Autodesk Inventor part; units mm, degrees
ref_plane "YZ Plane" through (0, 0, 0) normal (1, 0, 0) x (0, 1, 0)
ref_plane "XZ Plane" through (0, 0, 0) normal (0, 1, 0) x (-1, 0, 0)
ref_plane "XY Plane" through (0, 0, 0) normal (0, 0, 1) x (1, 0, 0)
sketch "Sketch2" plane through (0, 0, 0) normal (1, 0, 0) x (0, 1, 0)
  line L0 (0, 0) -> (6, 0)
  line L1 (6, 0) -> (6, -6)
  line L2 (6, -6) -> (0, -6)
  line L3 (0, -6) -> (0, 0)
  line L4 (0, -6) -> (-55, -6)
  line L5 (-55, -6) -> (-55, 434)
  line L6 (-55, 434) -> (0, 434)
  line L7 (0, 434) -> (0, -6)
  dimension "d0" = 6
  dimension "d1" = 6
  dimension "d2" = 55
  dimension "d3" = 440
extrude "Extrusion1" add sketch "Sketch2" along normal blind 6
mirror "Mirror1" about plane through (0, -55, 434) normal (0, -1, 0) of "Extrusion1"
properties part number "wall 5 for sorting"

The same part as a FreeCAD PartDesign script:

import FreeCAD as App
import Part
import Sketcher

doc = App.newDocument("Part")
params = doc.addObject("Spreadsheet::Sheet", "Params")
for row, (alias, value) in enumerate([
    ("sketch1_width", "6 mm"),
    ("sketch1_width2", "55 mm"),
    ("sketch1_height", "440 mm"),
    ("pad1_length", "6 mm"),
], start=1):
    params.set(f"A{row}", alias)
    params.set(f"B{row}", "=" + value)
    params.setAlias(f"B{row}", alias)

body = doc.addObject("PartDesign::Body", "Body")

# Sketch on YZ plane
sketch1 = doc.addObject("Sketcher::SketchObject", "Sketch")
body.addObject(sketch1)
sketch1.AttachmentSupport = (doc.YZ_Plane, [""])
sketch1.MapMode = "FlatFace"
sketch1.addGeometry(Part.LineSegment(App.Vector(6, 0, 0), App.Vector(0, 0, 0)), False)
sketch1.addGeometry(Part.LineSegment(App.Vector(0, 0, 0), App.Vector(0, 434, 0)), False)
sketch1.addGeometry(Part.LineSegment(App.Vector(0, 434, 0), App.Vector(-55, 434, 0)), False)
sketch1.addGeometry(Part.LineSegment(App.Vector(-55, 434, 0), App.Vector(-55, -6, 0)), False)
sketch1.addGeometry(Part.LineSegment(App.Vector(-55, -6, 0), App.Vector(6, -6, 0)), False)
sketch1.addGeometry(Part.LineSegment(App.Vector(6, -6, 0), App.Vector(6, 0, 0)), False)
sketch1.addConstraint(Sketcher.Constraint("Coincident", 0, 2, 1, 1))
sketch1.addConstraint(Sketcher.Constraint("Coincident", 1, 2, 2, 1))
sketch1.addConstraint(Sketcher.Constraint("Coincident", 2, 2, 3, 1))
sketch1.addConstraint(Sketcher.Constraint("Coincident", 3, 2, 4, 1))
sketch1.addConstraint(Sketcher.Constraint("Coincident", 4, 2, 5, 1))
sketch1.addConstraint(Sketcher.Constraint("Coincident", 5, 2, 0, 1))
sketch1.addConstraint(Sketcher.Constraint("Horizontal", 0))
sketch1.addConstraint(Sketcher.Constraint("Vertical", 1))
sketch1.addConstraint(Sketcher.Constraint("Horizontal", 2))
sketch1.addConstraint(Sketcher.Constraint("Vertical", 3))
sketch1.addConstraint(Sketcher.Constraint("Horizontal", 4))
sketch1.addConstraint(Sketcher.Constraint("Vertical", 5))
sketch1.addConstraint(Sketcher.Constraint("Coincident", 0, 2, -1, 1))
sketch1.addConstraint(Sketcher.Constraint("Equal", 0, 5))
sketch1.addConstraint(Sketcher.Constraint("DistanceX", 0, 2, 0, 1, 6.0))
sketch1.addConstraint(Sketcher.Constraint("DistanceX", 2, 2, 2, 1, 55.0))
sketch1.addConstraint(Sketcher.Constraint("DistanceY", 3, 2, 3, 1, 440.0))
sketch1.setExpression("Constraints[14]", "Params.sketch1_width")
sketch1.setExpression("Constraints[15]", "Params.sketch1_width2")
sketch1.setExpression("Constraints[16]", "Params.sketch1_height")
pad1 = doc.addObject("PartDesign::Pad", "Pad")
body.addObject(pad1)
pad1.Profile = sketch1
pad1.setExpression("Length", "Params.pad1_length")
doc.recompute()

datumplane = doc.addObject("PartDesign::Plane", "DatumPlane")
body.addObject(datumplane)
datumplane.AttachmentSupport = (doc.XZ_Plane, [""])
datumplane.MapMode = "FlatFace"
datumplane.AttachmentOffset = App.Placement(App.Vector(0, 0, 55), App.Rotation())
mirrored = doc.addObject("PartDesign::Mirrored", "Mirrored")
body.addObject(mirrored)
mirrored.Originals = [pad1]
mirrored.MirrorPlane = (datumplane, [""])
body.Tip = mirrored

doc.recompute()
